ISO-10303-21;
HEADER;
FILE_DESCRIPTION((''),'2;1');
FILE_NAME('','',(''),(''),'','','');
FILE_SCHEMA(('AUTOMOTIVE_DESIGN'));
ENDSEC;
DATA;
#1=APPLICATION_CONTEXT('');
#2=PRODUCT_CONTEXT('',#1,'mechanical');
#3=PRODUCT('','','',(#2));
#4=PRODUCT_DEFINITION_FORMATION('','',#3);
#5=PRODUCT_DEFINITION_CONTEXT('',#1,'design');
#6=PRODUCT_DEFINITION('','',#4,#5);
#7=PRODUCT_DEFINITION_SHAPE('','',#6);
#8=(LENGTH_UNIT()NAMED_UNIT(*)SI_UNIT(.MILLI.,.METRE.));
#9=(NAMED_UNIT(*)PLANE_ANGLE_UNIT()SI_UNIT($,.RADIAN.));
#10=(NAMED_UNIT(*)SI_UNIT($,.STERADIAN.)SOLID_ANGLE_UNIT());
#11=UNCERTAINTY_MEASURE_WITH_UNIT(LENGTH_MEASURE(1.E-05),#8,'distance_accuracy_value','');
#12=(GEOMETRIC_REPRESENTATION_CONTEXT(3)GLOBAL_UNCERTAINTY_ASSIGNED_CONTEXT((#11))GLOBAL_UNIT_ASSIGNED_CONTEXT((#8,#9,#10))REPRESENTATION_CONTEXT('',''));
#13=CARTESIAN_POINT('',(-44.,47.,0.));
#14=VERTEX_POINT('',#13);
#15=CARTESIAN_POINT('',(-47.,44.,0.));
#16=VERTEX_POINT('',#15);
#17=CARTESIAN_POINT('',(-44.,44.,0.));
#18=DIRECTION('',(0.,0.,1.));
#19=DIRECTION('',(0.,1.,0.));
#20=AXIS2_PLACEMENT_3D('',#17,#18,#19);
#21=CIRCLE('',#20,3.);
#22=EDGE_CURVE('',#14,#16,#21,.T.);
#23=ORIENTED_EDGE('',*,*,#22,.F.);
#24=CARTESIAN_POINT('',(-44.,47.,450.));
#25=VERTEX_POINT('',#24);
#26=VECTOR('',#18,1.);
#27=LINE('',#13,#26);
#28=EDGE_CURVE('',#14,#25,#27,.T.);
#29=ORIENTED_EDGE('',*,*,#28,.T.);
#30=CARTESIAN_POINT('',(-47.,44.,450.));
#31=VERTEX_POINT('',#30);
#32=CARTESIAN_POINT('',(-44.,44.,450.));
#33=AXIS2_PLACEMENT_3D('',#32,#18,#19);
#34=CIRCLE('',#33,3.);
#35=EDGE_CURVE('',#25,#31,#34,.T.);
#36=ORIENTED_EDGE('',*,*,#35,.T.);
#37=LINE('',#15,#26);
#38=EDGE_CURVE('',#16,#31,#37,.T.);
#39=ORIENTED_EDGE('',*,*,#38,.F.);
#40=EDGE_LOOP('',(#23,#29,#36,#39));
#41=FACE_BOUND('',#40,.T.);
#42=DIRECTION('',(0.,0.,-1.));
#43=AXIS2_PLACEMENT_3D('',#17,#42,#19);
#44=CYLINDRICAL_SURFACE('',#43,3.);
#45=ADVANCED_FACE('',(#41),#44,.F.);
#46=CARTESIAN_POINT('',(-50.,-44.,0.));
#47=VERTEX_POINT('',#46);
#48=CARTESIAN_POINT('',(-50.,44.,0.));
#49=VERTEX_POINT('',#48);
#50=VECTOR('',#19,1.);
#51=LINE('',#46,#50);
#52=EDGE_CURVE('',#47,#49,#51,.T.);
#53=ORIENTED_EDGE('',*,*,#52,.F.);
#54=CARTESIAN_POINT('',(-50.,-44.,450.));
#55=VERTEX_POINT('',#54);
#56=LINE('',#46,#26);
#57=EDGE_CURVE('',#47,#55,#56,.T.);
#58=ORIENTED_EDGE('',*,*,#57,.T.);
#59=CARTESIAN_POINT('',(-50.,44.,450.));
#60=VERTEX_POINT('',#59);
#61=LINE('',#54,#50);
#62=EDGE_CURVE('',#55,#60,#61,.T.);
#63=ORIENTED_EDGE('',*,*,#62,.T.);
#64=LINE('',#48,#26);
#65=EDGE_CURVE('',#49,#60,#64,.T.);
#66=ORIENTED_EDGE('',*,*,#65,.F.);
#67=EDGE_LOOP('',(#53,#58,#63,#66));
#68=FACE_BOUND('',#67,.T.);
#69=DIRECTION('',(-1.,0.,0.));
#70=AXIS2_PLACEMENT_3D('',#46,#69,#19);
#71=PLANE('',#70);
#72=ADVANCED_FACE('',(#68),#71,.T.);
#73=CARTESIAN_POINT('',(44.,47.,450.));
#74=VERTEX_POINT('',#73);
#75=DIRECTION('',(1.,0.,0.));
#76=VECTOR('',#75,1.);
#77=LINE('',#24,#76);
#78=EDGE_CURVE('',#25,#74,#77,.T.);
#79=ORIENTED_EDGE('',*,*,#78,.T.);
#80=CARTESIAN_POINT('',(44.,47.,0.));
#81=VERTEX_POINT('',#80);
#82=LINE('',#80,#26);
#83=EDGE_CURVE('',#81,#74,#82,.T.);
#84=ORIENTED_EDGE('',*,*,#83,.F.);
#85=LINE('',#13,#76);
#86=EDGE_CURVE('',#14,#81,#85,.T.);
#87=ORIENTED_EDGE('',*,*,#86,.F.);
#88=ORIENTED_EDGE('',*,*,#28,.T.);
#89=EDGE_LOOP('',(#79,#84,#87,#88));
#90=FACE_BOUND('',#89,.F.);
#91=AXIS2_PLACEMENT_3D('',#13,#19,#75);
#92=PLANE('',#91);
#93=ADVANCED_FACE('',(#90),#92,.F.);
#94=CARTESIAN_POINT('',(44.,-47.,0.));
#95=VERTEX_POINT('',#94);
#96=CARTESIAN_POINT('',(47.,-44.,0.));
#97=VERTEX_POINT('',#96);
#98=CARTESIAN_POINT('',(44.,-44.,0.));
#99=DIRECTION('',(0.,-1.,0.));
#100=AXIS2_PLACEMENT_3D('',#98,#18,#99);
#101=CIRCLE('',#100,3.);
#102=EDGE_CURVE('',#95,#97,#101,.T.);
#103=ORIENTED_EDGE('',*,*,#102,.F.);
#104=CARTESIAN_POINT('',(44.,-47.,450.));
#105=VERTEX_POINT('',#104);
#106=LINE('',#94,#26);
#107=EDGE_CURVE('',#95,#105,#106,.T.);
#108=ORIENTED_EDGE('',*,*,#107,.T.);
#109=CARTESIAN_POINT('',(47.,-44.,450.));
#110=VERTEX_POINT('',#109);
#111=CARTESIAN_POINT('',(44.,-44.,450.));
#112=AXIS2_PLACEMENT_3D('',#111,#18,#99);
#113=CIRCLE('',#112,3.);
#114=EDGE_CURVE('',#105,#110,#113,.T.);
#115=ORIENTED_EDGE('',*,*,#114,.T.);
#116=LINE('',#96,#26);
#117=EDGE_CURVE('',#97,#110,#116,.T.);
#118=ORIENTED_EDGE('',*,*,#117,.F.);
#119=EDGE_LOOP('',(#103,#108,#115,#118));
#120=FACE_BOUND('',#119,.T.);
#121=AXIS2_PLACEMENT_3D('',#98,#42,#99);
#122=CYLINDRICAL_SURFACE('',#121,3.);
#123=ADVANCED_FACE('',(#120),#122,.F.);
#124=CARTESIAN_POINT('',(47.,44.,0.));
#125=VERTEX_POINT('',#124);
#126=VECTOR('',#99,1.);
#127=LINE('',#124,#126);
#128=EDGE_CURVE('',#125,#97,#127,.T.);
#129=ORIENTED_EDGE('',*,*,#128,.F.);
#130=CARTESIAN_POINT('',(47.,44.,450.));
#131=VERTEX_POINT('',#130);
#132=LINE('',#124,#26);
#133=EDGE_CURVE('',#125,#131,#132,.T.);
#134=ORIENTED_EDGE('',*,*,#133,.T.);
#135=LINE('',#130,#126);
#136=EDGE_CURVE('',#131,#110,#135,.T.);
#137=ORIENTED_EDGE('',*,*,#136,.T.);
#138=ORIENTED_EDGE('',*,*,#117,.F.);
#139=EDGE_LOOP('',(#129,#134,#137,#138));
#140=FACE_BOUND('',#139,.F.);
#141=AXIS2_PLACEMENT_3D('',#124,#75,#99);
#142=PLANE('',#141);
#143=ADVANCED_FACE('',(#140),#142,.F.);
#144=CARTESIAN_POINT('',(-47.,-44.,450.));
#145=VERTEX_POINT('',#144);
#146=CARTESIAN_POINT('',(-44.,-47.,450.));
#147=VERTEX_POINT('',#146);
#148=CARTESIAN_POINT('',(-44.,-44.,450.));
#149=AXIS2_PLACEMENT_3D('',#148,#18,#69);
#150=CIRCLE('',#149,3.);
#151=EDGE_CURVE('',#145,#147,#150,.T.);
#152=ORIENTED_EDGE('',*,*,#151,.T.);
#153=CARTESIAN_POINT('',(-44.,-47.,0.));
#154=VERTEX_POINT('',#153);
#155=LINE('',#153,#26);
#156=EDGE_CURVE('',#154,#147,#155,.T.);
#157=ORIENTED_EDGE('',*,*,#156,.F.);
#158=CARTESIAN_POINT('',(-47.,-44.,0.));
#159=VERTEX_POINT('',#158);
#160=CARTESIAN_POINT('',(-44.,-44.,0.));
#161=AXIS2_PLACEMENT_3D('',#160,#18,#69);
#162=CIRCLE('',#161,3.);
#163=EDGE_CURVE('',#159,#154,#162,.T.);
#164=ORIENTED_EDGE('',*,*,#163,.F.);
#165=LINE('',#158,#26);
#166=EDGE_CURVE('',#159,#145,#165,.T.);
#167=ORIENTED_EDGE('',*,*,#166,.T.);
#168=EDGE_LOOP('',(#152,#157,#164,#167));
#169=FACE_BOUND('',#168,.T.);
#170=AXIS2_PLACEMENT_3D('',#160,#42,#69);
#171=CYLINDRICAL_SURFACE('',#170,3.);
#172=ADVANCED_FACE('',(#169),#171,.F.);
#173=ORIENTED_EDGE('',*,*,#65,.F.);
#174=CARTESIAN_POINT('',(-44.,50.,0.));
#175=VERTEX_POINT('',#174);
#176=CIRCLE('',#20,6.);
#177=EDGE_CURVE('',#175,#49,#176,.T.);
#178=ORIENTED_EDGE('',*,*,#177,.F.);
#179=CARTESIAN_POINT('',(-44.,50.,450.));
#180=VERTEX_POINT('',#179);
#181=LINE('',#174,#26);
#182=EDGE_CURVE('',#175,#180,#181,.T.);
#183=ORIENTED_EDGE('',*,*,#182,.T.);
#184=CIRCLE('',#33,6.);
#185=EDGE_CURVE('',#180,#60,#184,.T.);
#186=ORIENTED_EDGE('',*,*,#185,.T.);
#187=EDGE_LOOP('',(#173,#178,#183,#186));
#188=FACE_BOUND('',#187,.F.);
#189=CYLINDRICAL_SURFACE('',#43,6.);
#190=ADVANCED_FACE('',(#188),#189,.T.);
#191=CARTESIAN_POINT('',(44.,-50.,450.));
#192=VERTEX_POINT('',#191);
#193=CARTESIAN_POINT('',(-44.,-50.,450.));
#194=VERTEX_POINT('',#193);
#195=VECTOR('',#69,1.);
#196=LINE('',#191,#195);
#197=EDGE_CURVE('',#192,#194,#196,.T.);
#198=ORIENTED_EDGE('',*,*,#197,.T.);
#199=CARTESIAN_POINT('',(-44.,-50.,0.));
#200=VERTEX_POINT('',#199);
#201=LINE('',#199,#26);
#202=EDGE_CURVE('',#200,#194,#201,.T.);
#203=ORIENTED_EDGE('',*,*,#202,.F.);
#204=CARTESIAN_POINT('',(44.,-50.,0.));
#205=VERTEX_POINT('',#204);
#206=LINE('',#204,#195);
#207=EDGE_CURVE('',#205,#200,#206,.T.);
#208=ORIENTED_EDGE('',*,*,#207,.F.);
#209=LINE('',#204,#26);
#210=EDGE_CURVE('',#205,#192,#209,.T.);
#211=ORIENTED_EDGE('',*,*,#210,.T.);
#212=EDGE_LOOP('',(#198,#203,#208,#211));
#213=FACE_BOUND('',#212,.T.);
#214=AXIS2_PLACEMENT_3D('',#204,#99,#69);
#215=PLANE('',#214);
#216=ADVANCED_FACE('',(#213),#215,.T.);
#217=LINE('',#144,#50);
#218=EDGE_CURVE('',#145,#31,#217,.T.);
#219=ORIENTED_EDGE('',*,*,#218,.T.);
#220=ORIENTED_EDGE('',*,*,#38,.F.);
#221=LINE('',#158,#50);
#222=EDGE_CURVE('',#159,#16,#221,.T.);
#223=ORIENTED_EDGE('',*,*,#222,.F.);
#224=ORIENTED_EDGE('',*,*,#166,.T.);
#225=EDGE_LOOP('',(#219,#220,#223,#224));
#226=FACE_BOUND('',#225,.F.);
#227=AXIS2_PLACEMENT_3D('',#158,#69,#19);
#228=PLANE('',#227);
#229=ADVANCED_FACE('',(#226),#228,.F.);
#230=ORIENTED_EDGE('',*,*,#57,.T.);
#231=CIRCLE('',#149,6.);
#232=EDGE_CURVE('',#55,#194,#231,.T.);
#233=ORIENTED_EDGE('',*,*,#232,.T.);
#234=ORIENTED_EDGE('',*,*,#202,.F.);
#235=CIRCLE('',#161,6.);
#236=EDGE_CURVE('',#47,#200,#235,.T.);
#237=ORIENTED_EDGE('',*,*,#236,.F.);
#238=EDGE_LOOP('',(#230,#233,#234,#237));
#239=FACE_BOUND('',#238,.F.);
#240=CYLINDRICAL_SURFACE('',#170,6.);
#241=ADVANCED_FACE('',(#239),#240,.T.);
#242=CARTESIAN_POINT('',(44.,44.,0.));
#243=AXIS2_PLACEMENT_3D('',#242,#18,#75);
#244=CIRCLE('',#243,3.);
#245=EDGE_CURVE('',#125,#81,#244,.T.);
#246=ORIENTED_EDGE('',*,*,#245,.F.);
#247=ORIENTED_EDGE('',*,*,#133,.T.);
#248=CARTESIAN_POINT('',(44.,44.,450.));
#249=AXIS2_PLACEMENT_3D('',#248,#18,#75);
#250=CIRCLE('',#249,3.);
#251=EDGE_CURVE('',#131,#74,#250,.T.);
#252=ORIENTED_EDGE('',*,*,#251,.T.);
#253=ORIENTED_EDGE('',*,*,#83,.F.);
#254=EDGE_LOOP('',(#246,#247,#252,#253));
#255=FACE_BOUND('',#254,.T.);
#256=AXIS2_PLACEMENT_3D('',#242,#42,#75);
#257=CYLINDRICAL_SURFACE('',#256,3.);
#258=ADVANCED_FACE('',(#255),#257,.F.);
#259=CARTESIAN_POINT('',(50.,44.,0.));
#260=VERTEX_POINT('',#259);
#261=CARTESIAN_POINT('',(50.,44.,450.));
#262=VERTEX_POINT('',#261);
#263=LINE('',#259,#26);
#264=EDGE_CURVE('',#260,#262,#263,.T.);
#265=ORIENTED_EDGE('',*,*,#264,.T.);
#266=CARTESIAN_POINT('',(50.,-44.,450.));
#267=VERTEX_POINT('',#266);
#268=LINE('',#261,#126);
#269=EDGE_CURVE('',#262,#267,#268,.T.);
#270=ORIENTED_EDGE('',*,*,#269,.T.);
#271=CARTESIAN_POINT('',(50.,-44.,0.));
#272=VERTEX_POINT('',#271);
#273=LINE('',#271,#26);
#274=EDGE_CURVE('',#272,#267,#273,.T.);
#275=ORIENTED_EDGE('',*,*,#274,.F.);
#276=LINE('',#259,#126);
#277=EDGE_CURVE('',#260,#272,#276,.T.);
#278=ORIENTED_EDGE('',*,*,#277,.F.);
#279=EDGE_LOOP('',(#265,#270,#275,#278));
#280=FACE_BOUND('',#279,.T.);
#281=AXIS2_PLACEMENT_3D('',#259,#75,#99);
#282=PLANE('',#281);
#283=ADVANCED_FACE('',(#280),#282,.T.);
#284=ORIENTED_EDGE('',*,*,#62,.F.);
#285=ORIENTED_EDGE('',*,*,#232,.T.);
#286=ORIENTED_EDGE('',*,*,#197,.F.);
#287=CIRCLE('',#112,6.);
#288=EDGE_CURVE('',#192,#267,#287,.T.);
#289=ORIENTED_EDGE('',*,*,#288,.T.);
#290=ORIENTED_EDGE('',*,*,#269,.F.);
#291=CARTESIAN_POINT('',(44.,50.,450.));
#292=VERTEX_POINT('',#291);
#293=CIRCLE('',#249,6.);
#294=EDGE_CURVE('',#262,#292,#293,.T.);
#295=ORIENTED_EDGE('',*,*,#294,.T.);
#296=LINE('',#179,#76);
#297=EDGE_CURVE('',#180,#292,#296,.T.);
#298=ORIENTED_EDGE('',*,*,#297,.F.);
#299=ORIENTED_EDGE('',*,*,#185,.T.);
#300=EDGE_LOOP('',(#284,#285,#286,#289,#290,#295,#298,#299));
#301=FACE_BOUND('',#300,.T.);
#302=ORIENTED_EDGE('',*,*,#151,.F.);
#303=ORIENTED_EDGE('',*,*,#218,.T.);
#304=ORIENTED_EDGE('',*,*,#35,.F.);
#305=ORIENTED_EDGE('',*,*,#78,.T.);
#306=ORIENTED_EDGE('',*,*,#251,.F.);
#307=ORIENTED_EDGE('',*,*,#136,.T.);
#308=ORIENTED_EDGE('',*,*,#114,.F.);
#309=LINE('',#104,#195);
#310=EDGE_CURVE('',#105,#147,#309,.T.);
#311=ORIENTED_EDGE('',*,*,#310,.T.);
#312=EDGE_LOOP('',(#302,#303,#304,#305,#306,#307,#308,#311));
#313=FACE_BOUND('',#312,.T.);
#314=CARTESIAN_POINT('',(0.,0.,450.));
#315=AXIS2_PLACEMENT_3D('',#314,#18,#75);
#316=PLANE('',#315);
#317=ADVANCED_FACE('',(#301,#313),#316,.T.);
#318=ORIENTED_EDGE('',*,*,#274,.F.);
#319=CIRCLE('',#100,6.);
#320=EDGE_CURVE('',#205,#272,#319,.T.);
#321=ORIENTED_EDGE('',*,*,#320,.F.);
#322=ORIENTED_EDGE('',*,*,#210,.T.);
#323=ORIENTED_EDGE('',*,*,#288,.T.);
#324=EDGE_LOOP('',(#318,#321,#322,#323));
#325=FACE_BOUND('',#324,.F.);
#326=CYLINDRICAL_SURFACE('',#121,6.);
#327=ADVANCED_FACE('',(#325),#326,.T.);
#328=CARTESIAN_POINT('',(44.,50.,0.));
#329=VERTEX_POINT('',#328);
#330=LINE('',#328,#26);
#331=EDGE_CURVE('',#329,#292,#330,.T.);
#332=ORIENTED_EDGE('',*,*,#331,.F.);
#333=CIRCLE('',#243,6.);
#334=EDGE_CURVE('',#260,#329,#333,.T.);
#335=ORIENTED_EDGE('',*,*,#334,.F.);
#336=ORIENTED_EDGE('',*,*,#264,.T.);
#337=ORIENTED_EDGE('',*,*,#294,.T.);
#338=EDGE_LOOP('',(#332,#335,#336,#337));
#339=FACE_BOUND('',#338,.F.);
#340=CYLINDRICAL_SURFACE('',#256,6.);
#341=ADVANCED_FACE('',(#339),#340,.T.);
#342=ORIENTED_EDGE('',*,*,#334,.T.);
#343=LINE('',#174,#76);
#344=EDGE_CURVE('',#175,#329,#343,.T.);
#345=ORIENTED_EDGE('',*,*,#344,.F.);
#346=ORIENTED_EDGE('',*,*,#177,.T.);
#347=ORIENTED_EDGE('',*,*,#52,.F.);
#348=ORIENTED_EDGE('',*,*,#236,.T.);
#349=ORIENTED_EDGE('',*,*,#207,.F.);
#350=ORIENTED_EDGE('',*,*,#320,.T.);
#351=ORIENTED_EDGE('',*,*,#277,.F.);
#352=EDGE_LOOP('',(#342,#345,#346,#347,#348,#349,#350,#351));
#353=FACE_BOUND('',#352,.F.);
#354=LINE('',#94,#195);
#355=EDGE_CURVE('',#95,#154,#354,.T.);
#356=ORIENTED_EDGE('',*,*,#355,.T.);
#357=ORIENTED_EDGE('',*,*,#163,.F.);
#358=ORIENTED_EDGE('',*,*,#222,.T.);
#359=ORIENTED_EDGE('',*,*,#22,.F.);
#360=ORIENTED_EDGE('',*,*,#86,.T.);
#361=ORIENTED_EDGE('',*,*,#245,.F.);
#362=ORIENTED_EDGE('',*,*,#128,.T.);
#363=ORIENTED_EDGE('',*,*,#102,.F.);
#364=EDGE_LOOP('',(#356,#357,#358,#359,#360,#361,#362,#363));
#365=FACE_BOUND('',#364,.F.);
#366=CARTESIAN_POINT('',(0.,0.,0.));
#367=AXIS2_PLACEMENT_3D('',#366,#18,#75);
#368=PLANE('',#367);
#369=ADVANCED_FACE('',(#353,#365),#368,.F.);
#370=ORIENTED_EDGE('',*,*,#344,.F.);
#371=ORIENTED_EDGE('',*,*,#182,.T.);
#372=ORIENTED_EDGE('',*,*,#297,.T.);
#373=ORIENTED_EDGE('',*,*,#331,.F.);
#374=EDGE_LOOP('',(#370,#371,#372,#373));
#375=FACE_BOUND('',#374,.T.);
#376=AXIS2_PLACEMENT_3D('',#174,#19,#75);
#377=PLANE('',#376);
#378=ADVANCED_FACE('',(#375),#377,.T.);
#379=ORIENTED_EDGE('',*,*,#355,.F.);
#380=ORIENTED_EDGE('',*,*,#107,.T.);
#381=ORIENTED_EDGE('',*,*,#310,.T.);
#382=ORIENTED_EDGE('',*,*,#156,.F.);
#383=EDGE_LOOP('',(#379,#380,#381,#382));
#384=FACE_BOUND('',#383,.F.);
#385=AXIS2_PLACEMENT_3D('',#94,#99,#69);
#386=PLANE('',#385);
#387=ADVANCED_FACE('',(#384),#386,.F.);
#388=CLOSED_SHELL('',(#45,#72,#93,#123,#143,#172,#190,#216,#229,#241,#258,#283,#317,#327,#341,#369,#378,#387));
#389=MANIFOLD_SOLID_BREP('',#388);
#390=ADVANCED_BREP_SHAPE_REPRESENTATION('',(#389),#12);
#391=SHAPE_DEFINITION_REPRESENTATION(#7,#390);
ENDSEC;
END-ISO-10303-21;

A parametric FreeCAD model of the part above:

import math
import FreeCAD as App
import Part
import Sketcher
from FreeCAD import Vector
Q = App.Units.Quantity

doc = App.newDocument("Part")
body = doc.addObject("PartDesign::Body", "Body")

sketch1 = doc.addObject("Sketcher::SketchObject", "Sketch")
body.addObject(sketch1)
sketch1.AttachmentSupport = (doc.XY_Plane, [""])
sketch1.MapMode = "FlatFace"
sketch1.addGeometry([
    Part.LineSegment(Vector(-50, 44, 0), Vector(-50, -44, 0)),
    Part.ArcOfCircle(Part.Circle(Vector(-44, -44, 0), Vector(0, 0, 1), 6), math.radians(180), math.radians(270)),
    Part.LineSegment(Vector(-44, -50, 0), Vector(44, -50, 0)),
    Part.ArcOfCircle(Part.Circle(Vector(44, -44, 0), Vector(0, 0, 1), 6), math.radians(-90), math.radians(0)),
    Part.LineSegment(Vector(50, -44, 0), Vector(50, 44, 0)),
    Part.ArcOfCircle(Part.Circle(Vector(44, 44, 0), Vector(0, 0, 1), 6), math.radians(0), math.radians(90)),
    Part.LineSegment(Vector(44, 50, 0), Vector(-44, 50, 0)),
    Part.ArcOfCircle(Part.Circle(Vector(-44, 44, 0), Vector(0, 0, 1), 6), math.radians(90), math.radians(180)),
    Part.ArcOfCircle(Part.Circle(Vector(-44, 44, 0), Vector(0, 0, 1), 3), math.radians(90), math.radians(180)),
    Part.LineSegment(Vector(-44, 47, 0), Vector(44, 47, 0)),
    Part.ArcOfCircle(Part.Circle(Vector(44, 44, 0), Vector(0, 0, 1), 3), math.radians(0), math.radians(90)),
    Part.LineSegment(Vector(47, 44, 0), Vector(47, -44, 0)),
    Part.ArcOfCircle(Part.Circle(Vector(44, -44, 0), Vector(0, 0, 1), 3), math.radians(-90), math.radians(0)),
    Part.LineSegment(Vector(44, -47, 0), Vector(-44, -47, 0)),
    Part.ArcOfCircle(Part.Circle(Vector(-44, -44, 0), Vector(0, 0, 1), 3), math.radians(180), math.radians(270)),
    Part.LineSegment(Vector(-47, -44, 0), Vector(-47, 44, 0)),
], False)
sketch1.addConstraint([
    Sketcher.Constraint("Tangent", 0, 2, 1, 1),
    Sketcher.Constraint("Tangent", 1, 2, 2, 1),
    Sketcher.Constraint("Tangent", 2, 2, 3, 1),
    Sketcher.Constraint("Tangent", 3, 2, 4, 1),
    Sketcher.Constraint("Tangent", 4, 2, 5, 1),
    Sketcher.Constraint("Tangent", 5, 2, 6, 1),
    Sketcher.Constraint("Tangent", 6, 2, 7, 1),
    Sketcher.Constraint("Tangent", 7, 2, 0, 1),
    Sketcher.Constraint("Tangent", 8, 1, 9, 1),
    Sketcher.Constraint("Tangent", 9, 2, 10, 2),
    Sketcher.Constraint("Tangent", 10, 1, 11, 1),
    Sketcher.Constraint("Tangent", 11, 2, 12, 2),
    Sketcher.Constraint("Tangent", 12, 1, 13, 1),
    Sketcher.Constraint("Tangent", 13, 2, 14, 2),
    Sketcher.Constraint("Tangent", 14, 1, 15, 1),
    Sketcher.Constraint("Tangent", 15, 2, 8, 2),
    Sketcher.Constraint("Vertical", 0),
    Sketcher.Constraint("Horizontal", 2),
    Sketcher.Constraint("Vertical", 4),
    Sketcher.Constraint("Horizontal", 6),
    Sketcher.Constraint("Horizontal", 9),
    Sketcher.Constraint("Vertical", 11),
    Sketcher.Constraint("Horizontal", 13),
    Sketcher.Constraint("Vertical", 15),
    Sketcher.Constraint("Coincident", 8, 3, 7, 3),
    Sketcher.Constraint("Coincident", 10, 3, 5, 3),
    Sketcher.Constraint("Coincident", 12, 3, 3, 3),
    Sketcher.Constraint("Equal", 1, 3),
    Sketcher.Constraint("Equal", 3, 5),
    Sketcher.Constraint("Equal", 5, 7),
    Sketcher.Constraint("Equal", 12, 14),
    Sketcher.Constraint("Symmetric", 1, 3, 5, 3, -1, 1),
    Sketcher.Constraint("Equal", 13, 0),
    Sketcher.Constraint("Radius", 1, Q("6 mm")),
    Sketcher.Constraint("Radius", 8, Q("3 mm")),
    Sketcher.Constraint("DistanceX", 0, 2, -1, 1, Q("50 mm")),
])
pad1 = doc.addObject("PartDesign::Pad", "Pad")
body.addObject(pad1)
pad1.Profile = sketch1
pad1.Length = 450

doc.recompute()
